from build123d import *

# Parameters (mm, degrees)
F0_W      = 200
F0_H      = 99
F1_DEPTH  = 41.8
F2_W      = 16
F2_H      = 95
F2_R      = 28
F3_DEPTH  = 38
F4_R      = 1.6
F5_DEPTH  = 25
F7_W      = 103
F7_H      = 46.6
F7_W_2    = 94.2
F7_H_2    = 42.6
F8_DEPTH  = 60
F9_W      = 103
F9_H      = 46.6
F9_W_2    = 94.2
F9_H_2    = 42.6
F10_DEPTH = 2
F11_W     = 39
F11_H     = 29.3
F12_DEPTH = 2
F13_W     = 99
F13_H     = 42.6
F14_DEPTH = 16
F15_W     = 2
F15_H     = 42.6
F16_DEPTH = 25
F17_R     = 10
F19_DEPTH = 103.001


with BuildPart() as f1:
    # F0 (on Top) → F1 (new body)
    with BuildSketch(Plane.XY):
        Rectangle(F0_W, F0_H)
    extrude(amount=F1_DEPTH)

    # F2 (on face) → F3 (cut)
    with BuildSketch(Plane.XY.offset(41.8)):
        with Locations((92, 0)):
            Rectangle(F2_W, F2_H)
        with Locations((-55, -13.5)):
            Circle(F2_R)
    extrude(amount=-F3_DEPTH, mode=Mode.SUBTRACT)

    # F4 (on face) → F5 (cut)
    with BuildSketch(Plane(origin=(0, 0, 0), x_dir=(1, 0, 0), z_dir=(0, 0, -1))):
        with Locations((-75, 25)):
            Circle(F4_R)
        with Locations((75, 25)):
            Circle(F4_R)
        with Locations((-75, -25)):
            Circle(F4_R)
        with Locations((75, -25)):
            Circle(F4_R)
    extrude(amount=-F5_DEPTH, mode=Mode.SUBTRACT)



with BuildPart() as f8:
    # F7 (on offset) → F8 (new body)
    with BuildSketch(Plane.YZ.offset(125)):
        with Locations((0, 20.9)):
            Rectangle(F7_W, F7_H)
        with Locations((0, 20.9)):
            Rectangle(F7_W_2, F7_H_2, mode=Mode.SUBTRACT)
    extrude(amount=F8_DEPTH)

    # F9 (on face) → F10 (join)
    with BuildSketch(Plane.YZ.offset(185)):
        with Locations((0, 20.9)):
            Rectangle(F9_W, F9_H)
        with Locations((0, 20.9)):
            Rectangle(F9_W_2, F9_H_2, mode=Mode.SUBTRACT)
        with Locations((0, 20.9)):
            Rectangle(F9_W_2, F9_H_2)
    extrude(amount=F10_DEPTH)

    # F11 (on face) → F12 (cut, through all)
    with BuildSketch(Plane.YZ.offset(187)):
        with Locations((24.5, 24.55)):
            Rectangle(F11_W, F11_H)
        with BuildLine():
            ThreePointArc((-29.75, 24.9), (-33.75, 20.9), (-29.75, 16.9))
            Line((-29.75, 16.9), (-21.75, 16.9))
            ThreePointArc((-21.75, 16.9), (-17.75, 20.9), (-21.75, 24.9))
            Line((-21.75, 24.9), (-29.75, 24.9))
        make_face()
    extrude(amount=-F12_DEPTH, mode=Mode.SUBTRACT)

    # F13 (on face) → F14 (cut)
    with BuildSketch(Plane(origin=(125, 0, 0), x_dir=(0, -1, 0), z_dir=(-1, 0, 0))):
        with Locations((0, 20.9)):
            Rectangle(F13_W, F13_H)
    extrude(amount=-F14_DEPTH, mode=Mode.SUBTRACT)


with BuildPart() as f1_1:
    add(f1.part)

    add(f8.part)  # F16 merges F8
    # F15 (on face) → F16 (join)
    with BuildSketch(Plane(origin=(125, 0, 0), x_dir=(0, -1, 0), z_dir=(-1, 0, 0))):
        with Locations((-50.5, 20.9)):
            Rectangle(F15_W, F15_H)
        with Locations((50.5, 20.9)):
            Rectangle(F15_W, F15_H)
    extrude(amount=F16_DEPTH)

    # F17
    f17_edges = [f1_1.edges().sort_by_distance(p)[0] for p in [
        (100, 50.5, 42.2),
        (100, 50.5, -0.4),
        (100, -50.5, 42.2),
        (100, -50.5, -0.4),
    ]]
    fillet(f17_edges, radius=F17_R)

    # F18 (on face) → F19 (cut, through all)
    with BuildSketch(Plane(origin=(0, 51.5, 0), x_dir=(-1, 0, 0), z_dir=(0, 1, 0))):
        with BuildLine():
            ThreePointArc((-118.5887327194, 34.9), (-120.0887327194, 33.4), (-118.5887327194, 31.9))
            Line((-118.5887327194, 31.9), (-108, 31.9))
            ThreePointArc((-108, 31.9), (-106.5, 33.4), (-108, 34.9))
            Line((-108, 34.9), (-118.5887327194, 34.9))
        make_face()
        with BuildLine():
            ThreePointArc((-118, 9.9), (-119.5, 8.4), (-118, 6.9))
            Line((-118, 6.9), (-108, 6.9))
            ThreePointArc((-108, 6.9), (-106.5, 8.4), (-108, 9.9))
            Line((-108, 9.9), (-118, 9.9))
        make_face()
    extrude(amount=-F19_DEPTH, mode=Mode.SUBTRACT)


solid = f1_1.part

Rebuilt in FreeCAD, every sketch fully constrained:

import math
import FreeCAD as App
import Part
import Sketcher
from FreeCAD import Vector


def edges_at(feature, points):
    """Names of the edges that pass closest to the given points."""
    edges = feature.Shape.Edges
    near = lambda p: min(range(len(edges)), key=lambda i: edges[i].distToShape(Part.Vertex(*p))[0])
    return sorted({f"Edge{near(p) + 1}" for p in points})

doc = App.newDocument("Part")
body = doc.addObject("PartDesign::Body", "Body")

# Sketch on XY plane
sketch1 = body.newObject("Sketcher::SketchObject", "Sketch")
sketch1.AttachmentSupport = (doc.getObject("XY_Plane"), [""])
sketch1.MapMode = "FlatFace"
sketch1.addGeometry(Part.LineSegment(Vector(-100, 50, 0), Vector(-100, -50, 0)), False)
sketch1.addGeometry(Part.LineSegment(Vector(-100, -50, 0), Vector(100, -50, 0)), False)
sketch1.addGeometry(Part.LineSegment(Vector(100, -50, 0), Vector(100, 50, 0)), False)
sketch1.addGeometry(Part.LineSegment(Vector(100, 50, 0), Vector(-100, 50, 0)), False)
sketch1.addConstraint(Sketcher.Constraint("Coincident", 0, 2, 1, 1))
sketch1.addConstraint(Sketcher.Constraint("Coincident", 1, 2, 2, 1))
sketch1.addConstraint(Sketcher.Constraint("Coincident", 2, 2, 3, 1))
sketch1.addConstraint(Sketcher.Constraint("Coincident", 3, 2, 0, 1))
sketch1.addConstraint(Sketcher.Constraint("Vertical", 0))
sketch1.addConstraint(Sketcher.Constraint("Horizontal", 1))
sketch1.addConstraint(Sketcher.Constraint("Vertical", 2))
sketch1.addConstraint(Sketcher.Constraint("Horizontal", 3))
sketch1.addConstraint(Sketcher.Constraint("Symmetric", 0, 2, 2, 2, -1, 1))
sketch1.addConstraint(Sketcher.Constraint("DistanceX", 1, 1, 1, 2, 200.0))
sketch1.addConstraint(Sketcher.Constraint("DistanceY", 0, 2, 0, 1, 99.0))
pad1 = body.newObject("PartDesign::Pad", "Pad")
pad1.Profile = sketch1
pad1.Length = 41.8

# Sketch on XY plane
sketch2 = body.newObject("Sketcher::SketchObject", "Sketch001")
sketch2.AttachmentSupport = (doc.getObject("XY_Plane"), [""])
sketch2.MapMode = "FlatFace"
sketch2.AttachmentOffset = App.Placement(Vector(0, 0, 41.8), App.Rotation())
sketch2.addGeometry(Part.LineSegment(Vector(84, 48, 0), Vector(84, -48, 0)), False)
sketch2.addGeometry(Part.LineSegment(Vector(84, -48, 0), Vector(100, -48, 0)), False)
sketch2.addGeometry(Part.LineSegment(Vector(100, -48, 0), Vector(100, 48, 0)), False)
sketch2.addGeometry(Part.LineSegment(Vector(100, 48, 0), Vector(84, 48, 0)), False)
sketch2.addGeometry(Part.Circle(Vector(-55, -14, 0), Vector(0, 0, 1), 28), False)
sketch2.addConstraint(Sketcher.Constraint("Coincident", 0, 2, 1, 1))
sketch2.addConstraint(Sketcher.Constraint("Coincident", 1, 2, 2, 1))
sketch2.addConstraint(Sketcher.Constraint("Coincident", 2, 2, 3, 1))
sketch2.addConstraint(Sketcher.Constraint("Coincident", 3, 2, 0, 1))
sketch2.addConstraint(Sketcher.Constraint("Vertical", 0))
sketch2.addConstraint(Sketcher.Constraint("Horizontal", 1))
sketch2.addConstraint(Sketcher.Constraint("Vertical", 2))
sketch2.addConstraint(Sketcher.Constraint("Horizontal", 3))
sketch2.addConstraint(Sketcher.Constraint("Diameter", 4, 56.0))
sketch2.addConstraint(Sketcher.Constraint("DistanceX", 1, 1, 1, 2, 16.0))
sketch2.addConstraint(Sketcher.Constraint("DistanceY", 0, 2, 0, 1, 95.0))
sketch2.addConstraint(Sketcher.Constraint("DistanceX", 4, 3, -1, 1, 55.0))
sketch2.addConstraint(Sketcher.Constraint("DistanceX", -1, 1, 0, 2, 84.0))
sketch2.addConstraint(Sketcher.Constraint("DistanceY", 0, 2, 4, 3, 34.0))
sketch2.addConstraint(Sketcher.Constraint("DistanceY", 4, 3, -1, 1, 13.5))
pocket1 = body.newObject("PartDesign::Pocket", "Pocket")
pocket1.Profile = sketch2
pocket1.Length = 38

# Sketch on XY plane
sketch3 = body.newObject("Sketcher::SketchObject", "Sketch002")
sketch3.AttachmentSupport = (doc.getObject("XY_Plane"), [""])
sketch3.MapMode = "FlatFace"
sketch3.addGeometry(Part.Circle(Vector(-75, -25, 0), Vector(0, 0, 1), 1.6), False)
sketch3.addGeometry(Part.Circle(Vector(75, -25, 0), Vector(0, 0, 1), 1.6), False)
sketch3.addGeometry(Part.Circle(Vector(-75, 25, 0), Vector(0, 0, 1), 1.6), False)
sketch3.addGeometry(Part.Circle(Vector(75, 25, 0), Vector(0, 0, 1), 1.6), False)
sketch3.addConstraint(Sketcher.Constraint("Equal", 0, 1))
sketch3.addConstraint(Sketcher.Constraint("Equal", 1, 2))
sketch3.addConstraint(Sketcher.Constraint("Equal", 2, 3))
sketch3.addConstraint(Sketcher.Constraint("Symmetric", 1, 3, 2, 3, -1, 1))
sketch3.addConstraint(Sketcher.Constraint("Symmetric", 0, 3, 3, 3, -1, 1))
sketch3.addConstraint(Sketcher.Constraint("Symmetric", 0, 3, 1, 3, -2))
sketch3.addConstraint(Sketcher.Constraint("Diameter", 0, 3.2))
sketch3.addConstraint(Sketcher.Constraint("DistanceX", 0, 3, -1, 1, 75.0))
sketch3.addConstraint(Sketcher.Constraint("DistanceY", 0, 3, -1, 1, 25.0))
pocket2 = body.newObject("PartDesign::Pocket", "Pocket001")
pocket2.Profile = sketch3
pocket2.Length = 25
pocket2.Reversed = True
body2 = doc.addObject("PartDesign::Body", "Body001")

# Sketch on YZ plane
sketch4 = body2.newObject("Sketcher::SketchObject", "Sketch003")
sketch4.AttachmentSupport = (doc.getObject("YZ_Plane001"), [""])
sketch4.MapMode = "FlatFace"
sketch4.AttachmentOffset = App.Placement(Vector(0, 0, 125), App.Rotation())
sketch4.addGeometry(Part.LineSegment(Vector(-52, 44, 0), Vector(-52, -2, 0)), False)
sketch4.addGeometry(Part.LineSegment(Vector(-52, -2, 0), Vector(52, -2, 0)), False)
sketch4.addGeometry(Part.LineSegment(Vector(52, -2, 0), Vector(52, 44, 0)), False)
sketch4.addGeometry(Part.LineSegment(Vector(52, 44, 0), Vector(-52, 44, 0)), False)
sketch4.addGeometry(Part.LineSegment(Vector(47, 0, 0), Vector(-47, 0, 0)), False)
sketch4.addGeometry(Part.LineSegment(Vector(-47, 0, 0), Vector(-47, 42, 0)), False)
sketch4.addGeometry(Part.LineSegment(Vector(-47, 42, 0), Vector(47, 42, 0)), False)
sketch4.addGeometry(Part.LineSegment(Vector(47, 42, 0), Vector(47, 0, 0)), False)
sketch4.addConstraint(Sketcher.Constraint("Coincident", 0, 2, 1, 1))
sketch4.addConstraint(Sketcher.Constraint("Coincident", 1, 2, 2, 1))
sketch4.addConstraint(Sketcher.Constraint("Coincident", 2, 2, 3, 1))
sketch4.addConstraint(Sketcher.Constraint("Coincident", 3, 2, 0, 1))
sketch4.addConstraint(Sketcher.Constraint("Coincident", 4, 2, 5, 1))
sketch4.addConstraint(Sketcher.Constraint("Coincident", 5, 2, 6, 1))
sketch4.addConstraint(Sketcher.Constraint("Coincident", 6, 2, 7, 1))
sketch4.addConstraint(Sketcher.Constraint("Coincident", 7, 2, 4, 1))
sketch4.addConstraint(Sketcher.Constraint("Vertical", 0))
sketch4.addConstraint(Sketcher.Constraint("Horizontal", 1))
sketch4.addConstraint(Sketcher.Constraint("Vertical", 2))
sketch4.addConstraint(Sketcher.Constraint("Horizontal", 3))
sketch4.addConstraint(Sketcher.Constraint("Horizontal", 4))
sketch4.addConstraint(Sketcher.Constraint("Vertical", 5))
sketch4.addConstraint(Sketcher.Constraint("Horizontal", 6))
sketch4.addConstraint(Sketcher.Constraint("Vertical", 7))
sketch4.addConstraint(Sketcher.Constraint("DistanceX", 1, 1, 1, 2, 103.0))
sketch4.addConstraint(Sketcher.Constraint("DistanceX", 4, 2, 4, 1, 94.2))
sketch4.addConstraint(Sketcher.Constraint("DistanceY", 0, 2, 0, 1, 46.6))
sketch4.addConstraint(Sketcher.Constraint("DistanceY", 5, 1, 5, 2, 42.6))
sketch4.addConstraint(Sketcher.Constraint("DistanceY", 0, 2, 4, 2, 2.0))
sketch4.addConstraint(Sketcher.Constraint("DistanceX", 0, 2, -1, 1, 51.5))
sketch4.addConstraint(Sketcher.Constraint("DistanceY", 0, 2, -1, 1, 2.4))
sketch4.addConstraint(Sketcher.Constraint("DistanceX", 4, 2, -1, 1, 47.1))
pad2 = body2.newObject("PartDesign::Pad", "Pad001")
pad2.Profile = sketch4
pad2.Length = 60

# Sketch on YZ plane
sketch5 = body2.newObject("Sketcher::SketchObject", "Sketch004")
sketch5.AttachmentSupport = (doc.getObject("YZ_Plane001"), [""])
sketch5.MapMode = "FlatFace"
sketch5.AttachmentOffset = App.Placement(Vector(0, 0, 185), App.Rotation())
sketch5.addGeometry(Part.LineSegment(Vector(-52, 44, 0), Vector(-52, -2, 0)), False)
sketch5.addGeometry(Part.LineSegment(Vector(-52, -2, 0), Vector(52, -2, 0)), False)
sketch5.addGeometry(Part.LineSegment(Vector(52, -2, 0), Vector(52, 44, 0)), False)
sketch5.addGeometry(Part.LineSegment(Vector(52, 44, 0), Vector(-52, 44, 0)), False)
sketch5.addConstraint(Sketcher.Constraint("Coincident", 0, 2, 1, 1))
sketch5.addConstraint(Sketcher.Constraint("Coincident", 1, 2, 2, 1))
sketch5.addConstraint(Sketcher.Constraint("Coincident", 2, 2, 3, 1))
sketch5.addConstraint(Sketcher.Constraint("Coincident", 3, 2, 0, 1))
sketch5.addConstraint(Sketcher.Constraint("Vertical", 0))
sketch5.addConstraint(Sketcher.Constraint("Horizontal", 1))
sketch5.addConstraint(Sketcher.Constraint("Vertical", 2))
sketch5.addConstraint(Sketcher.Constraint("Horizontal", 3))
sketch5.addConstraint(Sketcher.Constraint("DistanceX", 1, 1, 1, 2, 103.0))
sketch5.addConstraint(Sketcher.Constraint("DistanceY", 0, 2, 0, 1, 46.6))
sketch5.addConstraint(Sketcher.Constraint("DistanceX", 0, 2, -1, 1, 51.5))
sketch5.addConstraint(Sketcher.Constraint("DistanceY", 0, 2, -1, 1, 2.4))
pad3 = body2.newObject("PartDesign::Pad", "Pad002")
pad3.Profile = sketch5
pad3.Length = 2

# Sketch on YZ plane
sketch6 = body2.newObject("Sketcher::SketchObject", "Sketch005")
sketch6.AttachmentSupport = (doc.getObject("YZ_Plane001"), [""])
sketch6.MapMode = "FlatFace"
sketch6.AttachmentOffset = App.Placement(Vector(0, 0, 187), App.Rotation())
sketch6.addGeometry(Part.LineSegment(Vector(5, 39.2, 0), Vector(5, 9.9, 0)), False)
sketch6.addGeometry(Part.LineSegment(Vector(5, 9.9, 0), Vector(44, 9.9, 0)), False)
sketch6.addGeometry(Part.LineSegment(Vector(44, 9.9, 0), Vector(44, 39.2, 0)), False)
sketch6.addGeometry(Part.LineSegment(Vector(44, 39.2, 0), Vector(5, 39.2, 0)), False)
sketch6.addGeometry(Part.ArcOfCircle(Part.Circle(Vector(-29.8, 20.9, 0), Vector(0, 0, 1), 4), math.radians(90), math.radians(270)), False)
sketch6.addGeometry(Part.LineSegment(Vector(-29.8, 16.9, 0), Vector(-21.8, 16.9, 0)), False)
sketch6.addGeometry(Part.ArcOfCircle(Part.Circle(Vector(-21.8, 20.9, 0), Vector(0, 0, 1), 4), math.radians(-90), math.radians(90)), False)
sketch6.addGeometry(Part.LineSegment(Vector(-21.8, 24.9, 0), Vector(-29.8, 24.9, 0)), False)
sketch6.addConstraint(Sketcher.Constraint("Coincident", 0, 2, 1, 1))
sketch6.addConstraint(Sketcher.Constraint("Coincident", 1, 2, 2, 1))
sketch6.addConstraint(Sketcher.Constraint("Coincident", 2, 2, 3, 1))
sketch6.addConstraint(Sketcher.Constraint("Coincident", 3, 2, 0, 1))
sketch6.addConstraint(Sketcher.Constraint("Tangent", 4, 2, 5, 1))
sketch6.addConstraint(Sketcher.Constraint("Tangent", 5, 2, 6, 1))
sketch6.addConstraint(Sketcher.Constraint("Tangent", 6, 2, 7, 1))
sketch6.addConstraint(Sketcher.Constraint("Tangent", 7, 2, 4, 1))
sketch6.addConstraint(Sketcher.Constraint("Vertical", 0))
sketch6.addConstraint(Sketcher.Constraint("Horizontal", 1))
sketch6.addConstraint(Sketcher.Constraint("Vertical", 2))
sketch6.addConstraint(Sketcher.Constraint("Horizontal", 3))
sketch6.addConstraint(Sketcher.Constraint("Horizontal", 5))
sketch6.addConstraint(Sketcher.Constraint("Horizontal", 7))
sketch6.addConstraint(Sketcher.Constraint("Radius", 4, 4.0))
sketch6.addConstraint(Sketcher.Constraint("DistanceX", 1, 1, 1, 2, 39.0))
sketch6.addConstraint(Sketcher.Constraint("DistanceX", 5, 1, 5, 2, 8.0))
sketch6.addConstraint(Sketcher.Constraint("DistanceY", 0, 2, 0, 1, 29.3))
sketch6.addConstraint(Sketcher.Constraint("DistanceX", -1, 1, 0, 2, 5.0))
sketch6.addConstraint(Sketcher.Constraint("DistanceY", 0, 2, 6, 3, 11.0))
sketch6.addConstraint(Sketcher.Constraint("DistanceY", -1, 1, 4, 3, 20.9))
sketch6.addConstraint(Sketcher.Constraint("DistanceX", 4, 3, -1, 1, 29.75))
pocket3 = body2.newObject("PartDesign::Pocket", "Pocket002")
pocket3.Profile = sketch6
pocket3.Type = "ThroughAll"

# Sketch on YZ plane
sketch7 = body2.newObject("Sketcher::SketchObject", "Sketch006")
sketch7.AttachmentSupport = (doc.getObject("YZ_Plane001"), [""])
sketch7.MapMode = "FlatFace"
sketch7.AttachmentOffset = App.Placement(Vector(0, 0, 125), App.Rotation())
sketch7.addGeometry(Part.LineSegment(Vector(50, 42, 0), Vector(50, 0, 0)), False)
sketch7.addGeometry(Part.LineSegment(Vector(50, 0, 0), Vector(-50, 0, 0)), False)
sketch7.addGeometry(Part.LineSegment(Vector(-50, 0, 0), Vector(-50, 42, 0)), False)
sketch7.addGeometry(Part.LineSegment(Vector(-50, 42, 0), Vector(50, 42, 0)), False)
sketch7.addConstraint(Sketcher.Constraint("Coincident", 0, 2, 1, 1))
sketch7.addConstraint(Sketcher.Constraint("Coincident", 1, 2, 2, 1))
sketch7.addConstraint(Sketcher.Constraint("Coincident", 2, 2, 3, 1))
sketch7.addConstraint(Sketcher.Constraint("Coincident", 3, 2, 0, 1))
sketch7.addConstraint(Sketcher.Constraint("Vertical", 0))
sketch7.addConstraint(Sketcher.Constraint("Horizontal", 1))
sketch7.addConstraint(Sketcher.Constraint("Vertical", 2))
sketch7.addConstraint(Sketcher.Constraint("Horizontal", 3))
sketch7.addConstraint(Sketcher.Constraint("DistanceX", 1, 2, 1, 1, 99.0))
sketch7.addConstraint(Sketcher.Constraint("DistanceY", 0, 2, 0, 1, 42.6))
sketch7.addConstraint(Sketcher.Constraint("DistanceX", -1, 1, 0, 2, 49.5))
sketch7.addConstraint(Sketcher.Constraint("DistanceY", 0, 2, -1, 1, 0.4))
pocket4 = body2.newObject("PartDesign::Pocket", "Pocket003")
pocket4.Profile = sketch7
pocket4.Length = 16
pocket4.Reversed = True
body.AllowCompound = True
doc.recompute()

boolean = body.newObject("PartDesign::Boolean", "Boolean")
boolean.Type = "Fuse"
boolean.addObjects([body2])

# Sketch on YZ plane
sketch8 = body.newObject("Sketcher::SketchObject", "Sketch007")
sketch8.AttachmentSupport = (doc.getObject("YZ_Plane"), [""])
sketch8.MapMode = "FlatFace"
sketch8.AttachmentOffset = App.Placement(Vector(0, 0, 125), App.Rotation())
sketch8.addGeometry(Part.LineSegment(Vector(51.5, 42.2, 0), Vector(51.5, -0.4, 0)), False)
sketch8.addGeometry(Part.LineSegment(Vector(51.5, -0.4, 0), Vector(49.5, -0.4, 0)), False)
sketch8.addGeometry(Part.LineSegment(Vector(49.5, -0.4, 0), Vector(49.5, 42.2, 0)), False)
sketch8.addGeometry(Part.LineSegment(Vector(49.5, 42.2, 0), Vector(51.5, 42.2, 0)), False)
sketch8.addGeometry(Part.LineSegment(Vector(-49.5, 42.2, 0), Vector(-49.5, -0.4, 0)), False)
sketch8.addGeometry(Part.LineSegment(Vector(-49.5, -0.4, 0), Vector(-51.5, -0.4, 0)), False)
sketch8.addGeometry(Part.LineSegment(Vector(-51.5, -0.4, 0), Vector(-51.5, 42.2, 0)), False)
sketch8.addGeometry(Part.LineSegment(Vector(-51.5, 42.2, 0), Vector(-49.5, 42.2, 0)), False)
sketch8.addConstraint(Sketcher.Constraint("Coincident", 0, 2, 1, 1))
sketch8.addConstraint(Sketcher.Constraint("Coincident", 1, 2, 2, 1))
sketch8.addConstraint(Sketcher.Constraint("Coincident", 2, 2, 3, 1))
sketch8.addConstraint(Sketcher.Constraint("Coincident", 3, 2, 0, 1))
sketch8.addConstraint(Sketcher.Constraint("Coincident", 4, 2, 5, 1))
sketch8.addConstraint(Sketcher.Constraint("Coincident", 5, 2, 6, 1))
sketch8.addConstraint(Sketcher.Constraint("Coincident", 6, 2, 7, 1))
sketch8.addConstraint(Sketcher.Constraint("Coincident", 7, 2, 4, 1))
sketch8.addConstraint(Sketcher.Constraint("Vertical", 0))
sketch8.addConstraint(Sketcher.Constraint("Horizontal", 1))
sketch8.addConstraint(Sketcher.Constraint("Vertical", 2))
sketch8.addConstraint(Sketcher.Constraint("Horizontal", 3))
sketch8.addConstraint(Sketcher.Constraint("Vertical", 4))
sketch8.addConstraint(Sketcher.Constraint("Horizontal", 5))
sketch8.addConstraint(Sketcher.Constraint("Vertical", 6))
sketch8.addConstraint(Sketcher.Constraint("Horizontal", 7))
sketch8.addConstraint(Sketcher.Constraint("Symmetric", 1, 2, 4, 2, -2))
sketch8.addConstraint(Sketcher.Constraint("Symmetric", 3, 2, 6, 2, -2))
sketch8.addConstraint(Sketcher.Constraint("DistanceX", 1, 2, 1, 1, 2.0))
sketch8.addConstraint(Sketcher.Constraint("DistanceY", 0, 2, 0, 1, 42.6))
sketch8.addConstraint(Sketcher.Constraint("DistanceX", 4, 2, 1, 2, 99.0))
sketch8.addConstraint(Sketcher.Constraint("DistanceY", 0, 2, -1, 1, 0.4))
pad4 = body.newObject("PartDesign::Pad", "Pad003")
pad4.Profile = sketch8
pad4.Length = 25
pad4.Reversed = True
doc.recompute()

fillet = body.newObject("PartDesign::Fillet", "Fillet")
fillet.Base = (pad4, edges_at(pad4, [
    (100, 50.5, 42.2),
    (100, 50.5, -0.4),
    (100, -50.5, 42.2),
    (100, -50.5, -0.4),
]))
fillet.Radius = 10

# Sketch on XZ plane
sketch9 = body.newObject("Sketcher::SketchObject", "Sketch008")
sketch9.AttachmentSupport = (doc.getObject("XZ_Plane"), [""])
sketch9.MapMode = "FlatFace"
sketch9.AttachmentOffset = App.Placement(Vector(0, 0, -51.5), App.Rotation())
sketch9.addGeometry(Part.ArcOfCircle(Part.Circle(Vector(118.6, 33.4, 0), Vector(0, 0, 1), 1.5), math.radians(-90), math.radians(90)), False)
sketch9.addGeometry(Part.LineSegment(Vector(118.6, 31.9, 0), Vector(108, 31.9, 0)), False)
sketch9.addGeometry(Part.ArcOfCircle(Part.Circle(Vector(108, 33.4, 0), Vector(0, 0, 1), 1.5), math.radians(90), math.radians(270)), False)
sketch9.addGeometry(Part.LineSegment(Vector(108, 34.9, 0), Vector(118.6, 34.9, 0)), False)
sketch9.addGeometry(Part.ArcOfCircle(Part.Circle(Vector(118, 8.4, 0), Vector(0, 0, 1), 1.5), math.radians(-90), math.radians(90)), False)
sketch9.addGeometry(Part.LineSegment(Vector(118, 6.9, 0), Vector(108, 6.9, 0)), False)
sketch9.addGeometry(Part.ArcOfCircle(Part.Circle(Vector(108, 8.4, 0), Vector(0, 0, 1), 1.5), math.radians(90), math.radians(270)), False)
sketch9.addGeometry(Part.LineSegment(Vector(108, 9.9, 0), Vector(118, 9.9, 0)), False)
sketch9.addConstraint(Sketcher.Constraint("Tangent", 0, 1, 1, 1))
sketch9.addConstraint(Sketcher.Constraint("Tangent", 1, 2, 2, 2))
sketch9.addConstraint(Sketcher.Constraint("Tangent", 2, 1, 3, 1))
sketch9.addConstraint(Sketcher.Constraint("Tangent", 3, 2, 0, 2))
sketch9.addConstraint(Sketcher.Constraint("Tangent", 4, 1, 5, 1))
sketch9.addConstraint(Sketcher.Constraint("Tangent", 5, 2, 6, 2))
sketch9.addConstraint(Sketcher.Constraint("Tangent", 6, 1, 7, 1))
sketch9.addConstraint(Sketcher.Constraint("Tangent", 7, 2, 4, 2))
sketch9.addConstraint(Sketcher.Constraint("Horizontal", 1))
sketch9.addConstraint(Sketcher.Constraint("Horizontal", 3))
sketch9.addConstraint(Sketcher.Constraint("Horizontal", 5))
sketch9.addConstraint(Sketcher.Constraint("Horizontal", 7))
sketch9.addConstraint(Sketcher.Constraint("Equal", 2, 4))
sketch9.addConstraint(Sketcher.Constraint("Vertical", 2, 3, 6, 3))
sketch9.addConstraint(Sketcher.Constraint("Radius", 0, 1.5))
sketch9.addConstraint(Sketcher.Constraint("DistanceX", 5, 2, 5, 1, 10.0))
sketch9.addConstraint(Sketcher.Constraint("DistanceX", -1, 1, 2, 3, 108.0))
sketch9.addConstraint(Sketcher.Constraint("DistanceY", 4, 3, 0, 3, 25.0))
sketch9.addConstraint(Sketcher.Constraint("DistanceY", -1, 1, 0, 3, 33.4))
sketch9.addConstraint(Sketcher.Constraint("DistanceX", 1, 2, 1, 1, 10.588733))
pocket5 = body.newObject("PartDesign::Pocket", "Pocket004")
pocket5.Profile = sketch9
pocket5.Type = "ThroughAll"
pocket5.Reversed = True

doc.recompute()
